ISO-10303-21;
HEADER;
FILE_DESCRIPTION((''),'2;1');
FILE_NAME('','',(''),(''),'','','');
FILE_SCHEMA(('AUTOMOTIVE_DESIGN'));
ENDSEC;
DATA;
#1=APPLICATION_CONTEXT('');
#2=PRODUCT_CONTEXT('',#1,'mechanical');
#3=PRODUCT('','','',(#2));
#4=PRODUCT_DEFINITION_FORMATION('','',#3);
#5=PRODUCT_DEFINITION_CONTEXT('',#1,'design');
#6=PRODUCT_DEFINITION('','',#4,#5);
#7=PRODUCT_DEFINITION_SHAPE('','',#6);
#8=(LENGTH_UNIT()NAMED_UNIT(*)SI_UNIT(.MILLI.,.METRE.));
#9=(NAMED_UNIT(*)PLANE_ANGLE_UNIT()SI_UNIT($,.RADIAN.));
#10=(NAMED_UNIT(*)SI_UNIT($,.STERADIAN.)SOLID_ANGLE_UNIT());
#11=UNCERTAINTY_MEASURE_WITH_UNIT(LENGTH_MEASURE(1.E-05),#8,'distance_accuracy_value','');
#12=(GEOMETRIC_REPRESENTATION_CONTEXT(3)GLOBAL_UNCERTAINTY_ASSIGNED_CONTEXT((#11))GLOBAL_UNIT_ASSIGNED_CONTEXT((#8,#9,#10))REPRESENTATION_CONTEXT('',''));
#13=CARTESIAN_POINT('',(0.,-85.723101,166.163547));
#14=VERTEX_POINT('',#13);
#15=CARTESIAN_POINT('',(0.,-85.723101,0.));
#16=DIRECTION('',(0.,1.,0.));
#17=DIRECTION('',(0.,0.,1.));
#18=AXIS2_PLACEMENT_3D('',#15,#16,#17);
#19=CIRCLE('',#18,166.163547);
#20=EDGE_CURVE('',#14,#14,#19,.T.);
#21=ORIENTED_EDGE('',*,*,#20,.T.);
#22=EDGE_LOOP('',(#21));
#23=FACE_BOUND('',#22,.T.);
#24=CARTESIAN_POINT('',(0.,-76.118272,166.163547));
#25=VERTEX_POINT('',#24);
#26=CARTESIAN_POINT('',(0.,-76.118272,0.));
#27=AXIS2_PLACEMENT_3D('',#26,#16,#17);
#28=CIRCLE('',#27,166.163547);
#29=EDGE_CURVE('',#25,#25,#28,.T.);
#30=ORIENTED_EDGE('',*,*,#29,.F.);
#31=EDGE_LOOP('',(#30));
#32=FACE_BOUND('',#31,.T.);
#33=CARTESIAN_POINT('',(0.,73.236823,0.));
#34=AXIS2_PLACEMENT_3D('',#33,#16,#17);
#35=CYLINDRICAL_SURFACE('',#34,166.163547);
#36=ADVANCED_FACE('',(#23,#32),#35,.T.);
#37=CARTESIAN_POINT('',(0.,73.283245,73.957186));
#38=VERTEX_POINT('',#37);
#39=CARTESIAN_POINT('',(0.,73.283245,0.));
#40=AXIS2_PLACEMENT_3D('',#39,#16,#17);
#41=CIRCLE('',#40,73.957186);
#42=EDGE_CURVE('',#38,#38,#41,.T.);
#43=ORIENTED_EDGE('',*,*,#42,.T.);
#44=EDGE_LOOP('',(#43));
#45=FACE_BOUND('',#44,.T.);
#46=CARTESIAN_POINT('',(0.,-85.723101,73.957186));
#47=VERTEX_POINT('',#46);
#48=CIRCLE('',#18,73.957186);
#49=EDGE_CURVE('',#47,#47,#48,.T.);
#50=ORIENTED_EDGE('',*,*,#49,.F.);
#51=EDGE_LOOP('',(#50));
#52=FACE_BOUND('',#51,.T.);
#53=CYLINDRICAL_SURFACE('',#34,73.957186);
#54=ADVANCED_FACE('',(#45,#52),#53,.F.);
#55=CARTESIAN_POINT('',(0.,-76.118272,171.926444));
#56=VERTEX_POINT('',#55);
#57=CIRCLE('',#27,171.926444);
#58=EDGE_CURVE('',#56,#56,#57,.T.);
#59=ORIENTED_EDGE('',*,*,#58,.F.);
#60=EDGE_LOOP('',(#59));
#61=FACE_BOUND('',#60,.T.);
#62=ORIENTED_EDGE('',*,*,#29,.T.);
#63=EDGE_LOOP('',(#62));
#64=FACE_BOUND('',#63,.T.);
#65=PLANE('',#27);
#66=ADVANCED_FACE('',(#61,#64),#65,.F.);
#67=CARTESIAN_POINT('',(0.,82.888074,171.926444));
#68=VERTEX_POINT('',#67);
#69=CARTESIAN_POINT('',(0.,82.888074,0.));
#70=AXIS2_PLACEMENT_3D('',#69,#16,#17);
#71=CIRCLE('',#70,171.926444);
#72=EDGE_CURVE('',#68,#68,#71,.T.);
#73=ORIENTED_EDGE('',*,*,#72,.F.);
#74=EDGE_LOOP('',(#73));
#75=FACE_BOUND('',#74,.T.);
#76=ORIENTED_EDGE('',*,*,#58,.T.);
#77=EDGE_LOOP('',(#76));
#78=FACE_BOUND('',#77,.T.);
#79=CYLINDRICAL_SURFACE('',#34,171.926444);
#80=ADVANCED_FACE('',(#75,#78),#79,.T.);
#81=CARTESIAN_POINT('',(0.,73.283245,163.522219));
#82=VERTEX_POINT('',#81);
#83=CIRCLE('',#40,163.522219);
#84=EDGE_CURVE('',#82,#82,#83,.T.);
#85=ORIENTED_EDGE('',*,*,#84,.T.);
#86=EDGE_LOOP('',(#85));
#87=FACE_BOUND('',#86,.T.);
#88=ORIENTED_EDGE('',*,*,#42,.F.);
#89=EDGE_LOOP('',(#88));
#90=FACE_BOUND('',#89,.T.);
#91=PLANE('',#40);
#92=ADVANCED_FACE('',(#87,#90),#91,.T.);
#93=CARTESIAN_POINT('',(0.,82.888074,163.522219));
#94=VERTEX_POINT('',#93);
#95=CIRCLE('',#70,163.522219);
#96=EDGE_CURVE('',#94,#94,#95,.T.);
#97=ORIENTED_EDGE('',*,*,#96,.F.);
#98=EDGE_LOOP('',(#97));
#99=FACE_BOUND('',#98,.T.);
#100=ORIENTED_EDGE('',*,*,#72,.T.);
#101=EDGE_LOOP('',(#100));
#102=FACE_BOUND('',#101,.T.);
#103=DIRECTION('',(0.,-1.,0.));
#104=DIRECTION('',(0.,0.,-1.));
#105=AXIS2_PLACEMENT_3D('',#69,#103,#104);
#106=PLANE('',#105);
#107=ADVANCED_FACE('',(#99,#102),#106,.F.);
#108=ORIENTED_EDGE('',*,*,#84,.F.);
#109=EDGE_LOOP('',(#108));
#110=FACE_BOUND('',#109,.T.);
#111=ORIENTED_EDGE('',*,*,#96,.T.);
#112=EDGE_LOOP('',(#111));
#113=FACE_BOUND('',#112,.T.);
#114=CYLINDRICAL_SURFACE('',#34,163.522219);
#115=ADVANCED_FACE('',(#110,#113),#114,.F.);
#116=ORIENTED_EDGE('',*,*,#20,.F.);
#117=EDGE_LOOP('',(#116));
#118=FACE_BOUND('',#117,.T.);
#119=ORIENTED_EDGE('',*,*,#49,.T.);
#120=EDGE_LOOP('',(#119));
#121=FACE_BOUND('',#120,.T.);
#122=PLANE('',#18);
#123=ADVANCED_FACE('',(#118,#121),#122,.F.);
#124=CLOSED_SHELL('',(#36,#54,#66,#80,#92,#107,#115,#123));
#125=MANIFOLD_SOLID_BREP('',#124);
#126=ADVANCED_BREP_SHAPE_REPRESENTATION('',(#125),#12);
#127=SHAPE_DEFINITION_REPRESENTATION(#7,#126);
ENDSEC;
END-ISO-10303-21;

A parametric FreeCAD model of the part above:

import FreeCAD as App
import Part
import Sketcher

V = App.Vector
Q = App.Units.Quantity

doc = App.newDocument("Part")
body = doc.addObject("PartDesign::Body", "Body")

sketch1 = body.newObject("Sketcher::SketchObject", "Sketch")
sketch1.AttachmentSupport = (doc.getObject("YZ_Plane"), [""])
sketch1.MapMode = "FlatFace"
sketch1.addGeometry(Part.LineSegment(V(-85.723101, -73.957186, 0), V(-85.723101, -166.163547, 0)), False)
sketch1.addGeometry(Part.LineSegment(V(-85.723101, -166.163547, 0), V(-76.118272, -166.163547, 0)), False)
sketch1.addGeometry(Part.LineSegment(V(-76.118272, -166.163547, 0), V(-76.118272, -171.926444, 0)), False)
sketch1.addGeometry(Part.LineSegment(V(-76.118272, -171.926444, 0), V(82.888074, -171.926444, 0)), False)
sketch1.addGeometry(Part.LineSegment(V(82.888074, -171.926444, 0), V(82.888074, -163.522219, 0)), False)
sketch1.addGeometry(Part.LineSegment(V(82.888074, -163.522219, 0), V(73.283245, -163.522219, 0)), False)
sketch1.addGeometry(Part.LineSegment(V(73.283245, -163.522219, 0), V(73.283245, -73.957186, 0)), False)
sketch1.addGeometry(Part.LineSegment(V(73.283245, -73.957186, 0), V(-85.723101, -73.957186, 0)), False)
sketch1.addConstraint(Sketcher.Constraint("Coincident", 0, 2, 1, 1))
sketch1.addConstraint(Sketcher.Constraint("Coincident", 1, 2, 2, 1))
sketch1.addConstraint(Sketcher.Constraint("Coincident", 2, 2, 3, 1))
sketch1.addConstraint(Sketcher.Constraint("Coincident", 3, 2, 4, 1))
sketch1.addConstraint(Sketcher.Constraint("Coincident", 4, 2, 5, 1))
sketch1.addConstraint(Sketcher.Constraint("Coincident", 5, 2, 6, 1))
sketch1.addConstraint(Sketcher.Constraint("Coincident", 6, 2, 7, 1))
sketch1.addConstraint(Sketcher.Constraint("Coincident", 7, 2, 0, 1))
sketch1.addConstraint(Sketcher.Constraint("Vertical", 0))
sketch1.addConstraint(Sketcher.Constraint("Horizontal", 1))
sketch1.addConstraint(Sketcher.Constraint("Vertical", 2))
sketch1.addConstraint(Sketcher.Constraint("Horizontal", 3))
sketch1.addConstraint(Sketcher.Constraint("Vertical", 4))
sketch1.addConstraint(Sketcher.Constraint("Horizontal", 5))
sketch1.addConstraint(Sketcher.Constraint("Vertical", 6))
sketch1.addConstraint(Sketcher.Constraint("Horizontal", 7))
sketch1.addConstraint(Sketcher.Constraint("Equal", 1, 5))
sketch1.addConstraint(Sketcher.Constraint("DistanceX", 1, 1, 1, 2, Q("9.604829 mm")))
sketch1.addConstraint(Sketcher.Constraint("DistanceY", 0, 2, 0, 1, Q("92.206361 mm")))
sketch1.addConstraint(Sketcher.Constraint("DistanceX", 0, 2, -1, 1, Q("85.723101 mm")))
sketch1.addConstraint(Sketcher.Constraint("DistanceX", 3, 1, 3, 2, Q("159.006346 mm")))
sketch1.addConstraint(Sketcher.Constraint("DistanceY", 2, 2, 2, 1, Q("5.762898 mm")))
sketch1.addConstraint(Sketcher.Constraint("DistanceY", 4, 1, 4, 2, Q("8.404226 mm")))
sketch1.addConstraint(Sketcher.Constraint("DistanceY", 4, 2, -1, 1, Q("163.522219 mm")))
revolution = body.newObject("PartDesign::Revolution", "Revolution")
revolution.Profile = sketch1
revolution.ReferenceAxis = (sketch1, ["H_Axis"])
revolution.Angle = 360

doc.recompute()
